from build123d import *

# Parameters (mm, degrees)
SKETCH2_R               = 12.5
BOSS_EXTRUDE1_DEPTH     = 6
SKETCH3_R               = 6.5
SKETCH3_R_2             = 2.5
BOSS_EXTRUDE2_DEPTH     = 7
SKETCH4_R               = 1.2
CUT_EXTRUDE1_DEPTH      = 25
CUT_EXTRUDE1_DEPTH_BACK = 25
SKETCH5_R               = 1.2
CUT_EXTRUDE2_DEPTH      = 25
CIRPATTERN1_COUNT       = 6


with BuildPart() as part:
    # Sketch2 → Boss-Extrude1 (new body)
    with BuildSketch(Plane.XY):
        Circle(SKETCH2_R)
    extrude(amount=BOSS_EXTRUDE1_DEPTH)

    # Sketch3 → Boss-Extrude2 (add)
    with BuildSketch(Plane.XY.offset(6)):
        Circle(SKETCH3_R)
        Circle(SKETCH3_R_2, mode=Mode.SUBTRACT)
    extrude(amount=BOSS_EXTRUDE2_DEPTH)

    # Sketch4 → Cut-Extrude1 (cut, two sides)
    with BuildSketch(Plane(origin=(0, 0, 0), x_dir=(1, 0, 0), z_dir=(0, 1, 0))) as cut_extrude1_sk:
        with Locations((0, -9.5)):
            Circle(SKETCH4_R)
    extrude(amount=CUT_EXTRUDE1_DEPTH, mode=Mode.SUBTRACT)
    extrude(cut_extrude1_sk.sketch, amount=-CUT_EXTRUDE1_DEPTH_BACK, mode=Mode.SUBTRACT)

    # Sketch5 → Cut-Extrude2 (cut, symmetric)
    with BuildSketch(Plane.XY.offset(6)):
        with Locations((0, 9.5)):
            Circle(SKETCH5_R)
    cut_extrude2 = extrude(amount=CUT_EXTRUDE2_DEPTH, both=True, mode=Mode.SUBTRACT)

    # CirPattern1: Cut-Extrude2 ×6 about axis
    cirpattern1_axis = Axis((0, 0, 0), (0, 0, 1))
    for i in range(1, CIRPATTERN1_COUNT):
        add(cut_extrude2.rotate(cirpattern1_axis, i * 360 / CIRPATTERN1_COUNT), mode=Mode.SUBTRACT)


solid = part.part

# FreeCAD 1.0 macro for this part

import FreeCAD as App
import Part
import Sketcher
Q = App.Units.Quantity

doc = App.newDocument("Part")
body = doc.addObject("PartDesign::Body", "Body")

# Sketch on XY plane
sketch1 = doc.addObject("Sketcher::SketchObject", "Sketch")
body.addObject(sketch1)
sketch1.AttachmentSupport = (doc.XY_Plane, [""])
sketch1.MapMode = "FlatFace"
sketch1.addGeometry(Part.Circle(App.Vector(0, 0, 0), App.Vector(0, 0, 1), 12.5), False)
sketch1.addConstraint([
    Sketcher.Constraint("Coincident", 0, 3, -1, 1),
    Sketcher.Constraint("Diameter", 0, Q("25 mm")),
])
pad1 = doc.addObject("PartDesign::Pad", "Pad")
body.addObject(pad1)
pad1.Profile = sketch1
pad1.Length = 6

# Sketch on XY plane
sketch2 = doc.addObject("Sketcher::SketchObject", "Sketch001")
body.addObject(sketch2)
sketch2.AttachmentSupport = (doc.XY_Plane, [""])
sketch2.MapMode = "FlatFace"
sketch2.AttachmentOffset = App.Placement(App.Vector(0, 0, 6), App.Rotation())
sketch2.addGeometry([
    Part.Circle(App.Vector(0, 0, 0), App.Vector(0, 0, 1), 6.5),
    Part.Circle(App.Vector(0, 0, 0), App.Vector(0, 0, 1), 2.5),
], False)
sketch2.addConstraint([
    Sketcher.Constraint("Coincident", 0, 3, -1, 1),
    Sketcher.Constraint("Coincident", 1, 3, -1, 1),
    Sketcher.Constraint("Diameter", 0, Q("13 mm")),
    Sketcher.Constraint("Diameter", 1, Q("5 mm")),
])
pad2 = doc.addObject("PartDesign::Pad", "Pad001")
body.addObject(pad2)
pad2.Profile = sketch2
pad2.Length = 7

# Sketch on XZ plane
sketch3 = doc.addObject("Sketcher::SketchObject", "Sketch002")
body.addObject(sketch3)
sketch3.AttachmentSupport = (doc.XZ_Plane, [""])
sketch3.MapMode = "FlatFace"
sketch3.addGeometry(Part.Circle(App.Vector(0, 9.5, 0), App.Vector(0, 0, 1), 1.2), False)
sketch3.addConstraint([
    Sketcher.Constraint("PointOnObject", 0, 3, -2),
    Sketcher.Constraint("Diameter", 0, Q("2.4 mm")),
    Sketcher.Constraint("DistanceY", -1, 1, 0, 3, Q("9.5 mm")),
])
pocket1 = doc.addObject("PartDesign::Pocket", "Pocket")
body.addObject(pocket1)
pocket1.Profile = sketch3
pocket1.Type = "ThroughAll"
pocket1.Midplane = True

# Sketch on XY plane
sketch4 = doc.addObject("Sketcher::SketchObject", "Sketch003")
body.addObject(sketch4)
sketch4.AttachmentSupport = (doc.XY_Plane, [""])
sketch4.MapMode = "FlatFace"
sketch4.AttachmentOffset = App.Placement(App.Vector(0, 0, 6), App.Rotation())
sketch4.addGeometry(Part.Circle(App.Vector(0, 9.5, 0), App.Vector(0, 0, 1), 1.2), False)
sketch4.addConstraint([
    Sketcher.Constraint("PointOnObject", 0, 3, -2),
    Sketcher.Constraint("Diameter", 0, Q("2.4 mm")),
    Sketcher.Constraint("DistanceY", -1, 1, 0, 3, Q("9.5 mm")),
])
pocket2 = doc.addObject("PartDesign::Pocket", "Pocket001")
body.addObject(pocket2)
pocket2.Profile = sketch4
pocket2.Length = 50
pocket2.Midplane = True
doc.recompute()

polarpattern = doc.addObject("PartDesign::PolarPattern", "PolarPattern")
body.addObject(polarpattern)
polarpattern.Originals = [pocket2]
polarpattern.Axis = (doc.Z_Axis, [""])
polarpattern.Angle = 360
polarpattern.Occurrences = 6
body.Tip = polarpattern

doc.recompute()
